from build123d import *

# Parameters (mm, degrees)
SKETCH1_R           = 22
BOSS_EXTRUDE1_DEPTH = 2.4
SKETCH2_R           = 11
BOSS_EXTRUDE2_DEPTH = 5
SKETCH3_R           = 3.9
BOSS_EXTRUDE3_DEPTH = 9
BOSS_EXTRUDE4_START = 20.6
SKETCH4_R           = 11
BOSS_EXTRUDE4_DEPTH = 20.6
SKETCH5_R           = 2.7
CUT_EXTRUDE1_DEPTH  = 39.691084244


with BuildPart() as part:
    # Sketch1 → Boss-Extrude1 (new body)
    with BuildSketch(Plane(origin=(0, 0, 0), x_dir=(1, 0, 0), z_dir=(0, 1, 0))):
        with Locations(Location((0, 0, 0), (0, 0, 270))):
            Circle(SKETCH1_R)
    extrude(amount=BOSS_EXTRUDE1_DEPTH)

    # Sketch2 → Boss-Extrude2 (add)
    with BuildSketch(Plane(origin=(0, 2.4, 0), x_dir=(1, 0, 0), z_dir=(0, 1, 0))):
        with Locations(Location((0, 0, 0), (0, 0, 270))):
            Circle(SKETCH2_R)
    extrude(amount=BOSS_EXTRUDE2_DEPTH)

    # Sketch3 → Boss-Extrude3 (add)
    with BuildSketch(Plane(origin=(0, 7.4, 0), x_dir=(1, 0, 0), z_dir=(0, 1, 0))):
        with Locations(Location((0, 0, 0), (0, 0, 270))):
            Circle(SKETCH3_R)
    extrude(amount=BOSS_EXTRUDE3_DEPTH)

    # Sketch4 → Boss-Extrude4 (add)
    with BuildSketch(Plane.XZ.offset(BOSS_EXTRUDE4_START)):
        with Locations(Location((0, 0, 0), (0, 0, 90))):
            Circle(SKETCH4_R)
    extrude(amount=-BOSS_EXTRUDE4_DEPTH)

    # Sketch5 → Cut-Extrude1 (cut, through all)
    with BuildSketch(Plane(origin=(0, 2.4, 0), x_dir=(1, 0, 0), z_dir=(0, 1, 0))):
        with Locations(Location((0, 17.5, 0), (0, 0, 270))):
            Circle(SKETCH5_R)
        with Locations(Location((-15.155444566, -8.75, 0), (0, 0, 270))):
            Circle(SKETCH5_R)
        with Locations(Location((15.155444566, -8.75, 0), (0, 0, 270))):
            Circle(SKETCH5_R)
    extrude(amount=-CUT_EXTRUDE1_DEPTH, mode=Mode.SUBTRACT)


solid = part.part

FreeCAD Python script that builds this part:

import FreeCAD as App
import Part
import Sketcher
Q = App.Units.Quantity

doc = App.newDocument("Part")
body = doc.addObject("PartDesign::Body", "Body")

# Sketch on XZ plane
sketch1 = body.newObject("Sketcher::SketchObject", "Sketch")
sketch1.AttachmentSupport = (doc.getObject("XZ_Plane"), [""])
sketch1.MapMode = "FlatFace"
sketch1.addGeometry(Part.Circle(App.Vector(0, 0, 0), App.Vector(0, 0, 1), 22), False)
sketch1.addConstraint([
    Sketcher.Constraint("Coincident", 0, 3, -1, 1),
    Sketcher.Constraint("Diameter", 0, Q("44 mm")),
])
pad1 = body.newObject("PartDesign::Pad", "Pad")
pad1.Profile = sketch1
pad1.Length = 2.4
pad1.Reversed = True

# Sketch on XZ plane
sketch2 = body.newObject("Sketcher::SketchObject", "Sketch001")
sketch2.AttachmentSupport = (doc.getObject("XZ_Plane"), [""])
sketch2.MapMode = "FlatFace"
sketch2.AttachmentOffset = App.Placement(App.Vector(0, 0, -2.4), App.Rotation())
sketch2.addGeometry(Part.Circle(App.Vector(0, 0, 0), App.Vector(0, 0, 1), 11), False)
sketch2.addConstraint([
    Sketcher.Constraint("Coincident", 0, 3, -1, 1),
    Sketcher.Constraint("Diameter", 0, Q("22 mm")),
])
pad2 = body.newObject("PartDesign::Pad", "Pad001")
pad2.Profile = sketch2
pad2.Length = 5
pad2.Reversed = True

# Sketch on XZ plane
sketch3 = body.newObject("Sketcher::SketchObject", "Sketch002")
sketch3.AttachmentSupport = (doc.getObject("XZ_Plane"), [""])
sketch3.MapMode = "FlatFace"
sketch3.AttachmentOffset = App.Placement(App.Vector(0, 0, -7.4), App.Rotation())
sketch3.addGeometry(Part.Circle(App.Vector(0, 0, 0), App.Vector(0, 0, 1), 3.9), False)
sketch3.addConstraint([
    Sketcher.Constraint("Coincident", 0, 3, -1, 1),
    Sketcher.Constraint("Diameter", 0, Q("7.8 mm")),
])
pad3 = body.newObject("PartDesign::Pad", "Pad002")
pad3.Profile = sketch3
pad3.Length = 9
pad3.Reversed = True

# Sketch on XZ plane
sketch4 = body.newObject("Sketcher::SketchObject", "Sketch003")
sketch4.AttachmentSupport = (doc.getObject("XZ_Plane"), [""])
sketch4.MapMode = "FlatFace"
sketch4.AttachmentOffset = App.Placement(App.Vector(0, 0, 20.6), App.Rotation())
sketch4.addGeometry(Part.Circle(App.Vector(0, 0, 0), App.Vector(0, 0, 1), 11), False)
sketch4.addConstraint([
    Sketcher.Constraint("Coincident", 0, 3, -1, 1),
    Sketcher.Constraint("Diameter", 0, Q("22 mm")),
])
pad4 = body.newObject("PartDesign::Pad", "Pad003")
pad4.Profile = sketch4
pad4.Length = 20.6
pad4.Reversed = True

# Sketch on XZ plane
sketch5 = body.newObject("Sketcher::SketchObject", "Sketch004")
sketch5.AttachmentSupport = (doc.getObject("XZ_Plane"), [""])
sketch5.MapMode = "FlatFace"
sketch5.AttachmentOffset = App.Placement(App.Vector(0, 0, -2.4), App.Rotation())
sketch5.addGeometry([
    Part.Circle(App.Vector(0, -17.5, 0), App.Vector(0, 0, 1), 2.7),
    Part.Circle(App.Vector(-15.2, 8.8, 0), App.Vector(0, 0, 1), 2.7),
    Part.Circle(App.Vector(15.2, 8.8, 0), App.Vector(0, 0, 1), 2.7),
], False)
sketch5.addConstraint([
    Sketcher.Constraint("Equal", 0, 1),
    Sketcher.Constraint("Equal", 1, 2),
    Sketcher.Constraint("Symmetric", 1, 3, 2, 3, -2),
    Sketcher.Constraint("PointOnObject", 0, 3, -2),
    Sketcher.Constraint("Diameter", 0, Q("5.4 mm")),
    Sketcher.Constraint("DistanceY", 0, 3, -1, 1, Q("17.5 mm")),
    Sketcher.Constraint("DistanceY", -1, 1, 1, 3, Q("8.75 mm")),
    Sketcher.Constraint("DistanceX", 1, 3, 2, 3, Q("30.310889 mm")),
])
pocket1 = body.newObject("PartDesign::Pocket", "Pocket")
pocket1.Profile = sketch5
pocket1.Type = "ThroughAll"
pocket1.Reversed = True

doc.recompute()
